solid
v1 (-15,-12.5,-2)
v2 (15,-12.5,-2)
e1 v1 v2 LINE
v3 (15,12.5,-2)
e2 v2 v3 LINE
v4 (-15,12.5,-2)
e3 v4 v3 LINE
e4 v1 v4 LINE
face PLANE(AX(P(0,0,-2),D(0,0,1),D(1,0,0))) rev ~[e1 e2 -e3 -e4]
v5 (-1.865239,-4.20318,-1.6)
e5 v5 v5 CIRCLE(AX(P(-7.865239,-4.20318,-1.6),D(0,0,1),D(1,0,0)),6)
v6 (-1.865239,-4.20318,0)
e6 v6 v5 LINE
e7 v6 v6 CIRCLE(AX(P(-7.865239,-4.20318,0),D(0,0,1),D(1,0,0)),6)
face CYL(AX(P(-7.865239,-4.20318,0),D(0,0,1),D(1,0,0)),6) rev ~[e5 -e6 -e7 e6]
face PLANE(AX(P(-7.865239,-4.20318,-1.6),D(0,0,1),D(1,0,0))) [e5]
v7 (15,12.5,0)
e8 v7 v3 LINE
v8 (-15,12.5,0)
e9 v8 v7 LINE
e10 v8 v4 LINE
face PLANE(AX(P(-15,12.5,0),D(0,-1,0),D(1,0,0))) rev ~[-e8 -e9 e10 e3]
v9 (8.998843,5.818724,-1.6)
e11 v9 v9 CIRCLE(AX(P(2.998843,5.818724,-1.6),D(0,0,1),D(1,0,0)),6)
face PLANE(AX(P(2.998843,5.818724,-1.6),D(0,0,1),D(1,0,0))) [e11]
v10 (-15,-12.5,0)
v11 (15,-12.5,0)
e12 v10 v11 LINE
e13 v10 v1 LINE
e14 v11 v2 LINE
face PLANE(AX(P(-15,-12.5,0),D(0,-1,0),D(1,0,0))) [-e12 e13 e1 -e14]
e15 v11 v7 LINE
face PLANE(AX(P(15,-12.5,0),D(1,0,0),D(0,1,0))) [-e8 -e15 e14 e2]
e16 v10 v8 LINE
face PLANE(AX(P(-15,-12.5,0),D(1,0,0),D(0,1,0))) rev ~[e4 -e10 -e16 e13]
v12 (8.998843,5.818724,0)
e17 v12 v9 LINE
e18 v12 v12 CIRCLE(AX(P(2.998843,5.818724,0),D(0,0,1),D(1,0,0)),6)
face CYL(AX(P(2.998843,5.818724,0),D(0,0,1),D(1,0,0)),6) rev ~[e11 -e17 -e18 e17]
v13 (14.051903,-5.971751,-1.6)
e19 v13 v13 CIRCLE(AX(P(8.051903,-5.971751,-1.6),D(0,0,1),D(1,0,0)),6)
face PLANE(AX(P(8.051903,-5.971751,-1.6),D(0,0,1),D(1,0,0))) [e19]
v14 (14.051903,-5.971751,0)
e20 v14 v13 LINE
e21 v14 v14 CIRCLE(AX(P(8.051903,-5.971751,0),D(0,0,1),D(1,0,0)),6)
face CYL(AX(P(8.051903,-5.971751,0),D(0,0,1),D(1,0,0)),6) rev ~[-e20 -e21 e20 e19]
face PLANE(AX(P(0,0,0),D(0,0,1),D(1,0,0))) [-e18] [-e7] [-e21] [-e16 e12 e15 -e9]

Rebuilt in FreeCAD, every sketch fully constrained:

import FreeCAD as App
import Part
import Sketcher


def add_polygon(sketch, points):
    """Adds a closed chain of lines whose ends are joined by coincident constraints."""
    first, n = sketch.GeometryCount, len(points)
    for a, b in zip(points, points[1:] + points[:1]):
        sketch.addGeometry(Part.LineSegment(App.Vector(*a, 0), App.Vector(*b, 0)), False)
    for i in range(n):
        sketch.addConstraint(Sketcher.Constraint("Coincident", first + i, 2, first + (i + 1) % n, 1))

doc = App.newDocument("Part")
body = doc.addObject("PartDesign::Body", "Body")

# Sketch on XY plane
sketch1 = doc.addObject("Sketcher::SketchObject", "Sketch")
body.addObject(sketch1)
sketch1.AttachmentSupport = (doc.XY_Plane, [""])
sketch1.MapMode = "FlatFace"
add_polygon(sketch1, [(-15, 12), (-15, -12), (15, -12), (15, 12)])  # lines 0-3
sketch1.addConstraint([
    Sketcher.Constraint("Vertical", 0),
    Sketcher.Constraint("Horizontal", 1),
    Sketcher.Constraint("Vertical", 2),
    Sketcher.Constraint("Horizontal", 3),
    Sketcher.Constraint("Symmetric", 0, 2, 2, 2, -1, 1),
    Sketcher.Constraint("DistanceX", 1, 1, 1, 2, 30.0),
    Sketcher.Constraint("DistanceY", 0, 2, 0, 1, 25.0),
])
pad1 = doc.addObject("PartDesign::Pad", "Pad")
body.addObject(pad1)
pad1.Profile = sketch1
pad1.Length = 2
pad1.Reversed = True

# Sketch on XY plane
sketch2 = doc.addObject("Sketcher::SketchObject", "Sketch001")
body.addObject(sketch2)
sketch2.AttachmentSupport = (doc.XY_Plane, [""])
sketch2.MapMode = "FlatFace"
sketch2.addGeometry([
    Part.Circle(App.Vector(-8, -4, 0), App.Vector(0, 0, 1), 6),
    Part.Circle(App.Vector(3, 6, 0), App.Vector(0, 0, 1), 6),
    Part.Circle(App.Vector(8, -6, 0), App.Vector(0, 0, 1), 6),
], False)
sketch2.addConstraint([
    Sketcher.Constraint("Equal", 0, 1),
    Sketcher.Constraint("Equal", 1, 2),
    Sketcher.Constraint("Diameter", 0, 12.0),
    Sketcher.Constraint("DistanceX", 0, 3, -1, 1, 7.865239),
    Sketcher.Constraint("DistanceY", 0, 3, -1, 1, 4.20318),
    Sketcher.Constraint("DistanceY", 2, 3, -1, 1, 5.971751),
    Sketcher.Constraint("DistanceX", 1, 3, 2, 3, 5.05306),
    Sketcher.Constraint("DistanceX", 0, 3, 2, 3, 15.917142),
    Sketcher.Constraint("DistanceY", -1, 1, 1, 3, 5.818724),
])
pocket1 = doc.addObject("PartDesign::Pocket", "Pocket")
body.addObject(pocket1)
pocket1.Profile = sketch2
pocket1.Length = 1.6

doc.recompute()
